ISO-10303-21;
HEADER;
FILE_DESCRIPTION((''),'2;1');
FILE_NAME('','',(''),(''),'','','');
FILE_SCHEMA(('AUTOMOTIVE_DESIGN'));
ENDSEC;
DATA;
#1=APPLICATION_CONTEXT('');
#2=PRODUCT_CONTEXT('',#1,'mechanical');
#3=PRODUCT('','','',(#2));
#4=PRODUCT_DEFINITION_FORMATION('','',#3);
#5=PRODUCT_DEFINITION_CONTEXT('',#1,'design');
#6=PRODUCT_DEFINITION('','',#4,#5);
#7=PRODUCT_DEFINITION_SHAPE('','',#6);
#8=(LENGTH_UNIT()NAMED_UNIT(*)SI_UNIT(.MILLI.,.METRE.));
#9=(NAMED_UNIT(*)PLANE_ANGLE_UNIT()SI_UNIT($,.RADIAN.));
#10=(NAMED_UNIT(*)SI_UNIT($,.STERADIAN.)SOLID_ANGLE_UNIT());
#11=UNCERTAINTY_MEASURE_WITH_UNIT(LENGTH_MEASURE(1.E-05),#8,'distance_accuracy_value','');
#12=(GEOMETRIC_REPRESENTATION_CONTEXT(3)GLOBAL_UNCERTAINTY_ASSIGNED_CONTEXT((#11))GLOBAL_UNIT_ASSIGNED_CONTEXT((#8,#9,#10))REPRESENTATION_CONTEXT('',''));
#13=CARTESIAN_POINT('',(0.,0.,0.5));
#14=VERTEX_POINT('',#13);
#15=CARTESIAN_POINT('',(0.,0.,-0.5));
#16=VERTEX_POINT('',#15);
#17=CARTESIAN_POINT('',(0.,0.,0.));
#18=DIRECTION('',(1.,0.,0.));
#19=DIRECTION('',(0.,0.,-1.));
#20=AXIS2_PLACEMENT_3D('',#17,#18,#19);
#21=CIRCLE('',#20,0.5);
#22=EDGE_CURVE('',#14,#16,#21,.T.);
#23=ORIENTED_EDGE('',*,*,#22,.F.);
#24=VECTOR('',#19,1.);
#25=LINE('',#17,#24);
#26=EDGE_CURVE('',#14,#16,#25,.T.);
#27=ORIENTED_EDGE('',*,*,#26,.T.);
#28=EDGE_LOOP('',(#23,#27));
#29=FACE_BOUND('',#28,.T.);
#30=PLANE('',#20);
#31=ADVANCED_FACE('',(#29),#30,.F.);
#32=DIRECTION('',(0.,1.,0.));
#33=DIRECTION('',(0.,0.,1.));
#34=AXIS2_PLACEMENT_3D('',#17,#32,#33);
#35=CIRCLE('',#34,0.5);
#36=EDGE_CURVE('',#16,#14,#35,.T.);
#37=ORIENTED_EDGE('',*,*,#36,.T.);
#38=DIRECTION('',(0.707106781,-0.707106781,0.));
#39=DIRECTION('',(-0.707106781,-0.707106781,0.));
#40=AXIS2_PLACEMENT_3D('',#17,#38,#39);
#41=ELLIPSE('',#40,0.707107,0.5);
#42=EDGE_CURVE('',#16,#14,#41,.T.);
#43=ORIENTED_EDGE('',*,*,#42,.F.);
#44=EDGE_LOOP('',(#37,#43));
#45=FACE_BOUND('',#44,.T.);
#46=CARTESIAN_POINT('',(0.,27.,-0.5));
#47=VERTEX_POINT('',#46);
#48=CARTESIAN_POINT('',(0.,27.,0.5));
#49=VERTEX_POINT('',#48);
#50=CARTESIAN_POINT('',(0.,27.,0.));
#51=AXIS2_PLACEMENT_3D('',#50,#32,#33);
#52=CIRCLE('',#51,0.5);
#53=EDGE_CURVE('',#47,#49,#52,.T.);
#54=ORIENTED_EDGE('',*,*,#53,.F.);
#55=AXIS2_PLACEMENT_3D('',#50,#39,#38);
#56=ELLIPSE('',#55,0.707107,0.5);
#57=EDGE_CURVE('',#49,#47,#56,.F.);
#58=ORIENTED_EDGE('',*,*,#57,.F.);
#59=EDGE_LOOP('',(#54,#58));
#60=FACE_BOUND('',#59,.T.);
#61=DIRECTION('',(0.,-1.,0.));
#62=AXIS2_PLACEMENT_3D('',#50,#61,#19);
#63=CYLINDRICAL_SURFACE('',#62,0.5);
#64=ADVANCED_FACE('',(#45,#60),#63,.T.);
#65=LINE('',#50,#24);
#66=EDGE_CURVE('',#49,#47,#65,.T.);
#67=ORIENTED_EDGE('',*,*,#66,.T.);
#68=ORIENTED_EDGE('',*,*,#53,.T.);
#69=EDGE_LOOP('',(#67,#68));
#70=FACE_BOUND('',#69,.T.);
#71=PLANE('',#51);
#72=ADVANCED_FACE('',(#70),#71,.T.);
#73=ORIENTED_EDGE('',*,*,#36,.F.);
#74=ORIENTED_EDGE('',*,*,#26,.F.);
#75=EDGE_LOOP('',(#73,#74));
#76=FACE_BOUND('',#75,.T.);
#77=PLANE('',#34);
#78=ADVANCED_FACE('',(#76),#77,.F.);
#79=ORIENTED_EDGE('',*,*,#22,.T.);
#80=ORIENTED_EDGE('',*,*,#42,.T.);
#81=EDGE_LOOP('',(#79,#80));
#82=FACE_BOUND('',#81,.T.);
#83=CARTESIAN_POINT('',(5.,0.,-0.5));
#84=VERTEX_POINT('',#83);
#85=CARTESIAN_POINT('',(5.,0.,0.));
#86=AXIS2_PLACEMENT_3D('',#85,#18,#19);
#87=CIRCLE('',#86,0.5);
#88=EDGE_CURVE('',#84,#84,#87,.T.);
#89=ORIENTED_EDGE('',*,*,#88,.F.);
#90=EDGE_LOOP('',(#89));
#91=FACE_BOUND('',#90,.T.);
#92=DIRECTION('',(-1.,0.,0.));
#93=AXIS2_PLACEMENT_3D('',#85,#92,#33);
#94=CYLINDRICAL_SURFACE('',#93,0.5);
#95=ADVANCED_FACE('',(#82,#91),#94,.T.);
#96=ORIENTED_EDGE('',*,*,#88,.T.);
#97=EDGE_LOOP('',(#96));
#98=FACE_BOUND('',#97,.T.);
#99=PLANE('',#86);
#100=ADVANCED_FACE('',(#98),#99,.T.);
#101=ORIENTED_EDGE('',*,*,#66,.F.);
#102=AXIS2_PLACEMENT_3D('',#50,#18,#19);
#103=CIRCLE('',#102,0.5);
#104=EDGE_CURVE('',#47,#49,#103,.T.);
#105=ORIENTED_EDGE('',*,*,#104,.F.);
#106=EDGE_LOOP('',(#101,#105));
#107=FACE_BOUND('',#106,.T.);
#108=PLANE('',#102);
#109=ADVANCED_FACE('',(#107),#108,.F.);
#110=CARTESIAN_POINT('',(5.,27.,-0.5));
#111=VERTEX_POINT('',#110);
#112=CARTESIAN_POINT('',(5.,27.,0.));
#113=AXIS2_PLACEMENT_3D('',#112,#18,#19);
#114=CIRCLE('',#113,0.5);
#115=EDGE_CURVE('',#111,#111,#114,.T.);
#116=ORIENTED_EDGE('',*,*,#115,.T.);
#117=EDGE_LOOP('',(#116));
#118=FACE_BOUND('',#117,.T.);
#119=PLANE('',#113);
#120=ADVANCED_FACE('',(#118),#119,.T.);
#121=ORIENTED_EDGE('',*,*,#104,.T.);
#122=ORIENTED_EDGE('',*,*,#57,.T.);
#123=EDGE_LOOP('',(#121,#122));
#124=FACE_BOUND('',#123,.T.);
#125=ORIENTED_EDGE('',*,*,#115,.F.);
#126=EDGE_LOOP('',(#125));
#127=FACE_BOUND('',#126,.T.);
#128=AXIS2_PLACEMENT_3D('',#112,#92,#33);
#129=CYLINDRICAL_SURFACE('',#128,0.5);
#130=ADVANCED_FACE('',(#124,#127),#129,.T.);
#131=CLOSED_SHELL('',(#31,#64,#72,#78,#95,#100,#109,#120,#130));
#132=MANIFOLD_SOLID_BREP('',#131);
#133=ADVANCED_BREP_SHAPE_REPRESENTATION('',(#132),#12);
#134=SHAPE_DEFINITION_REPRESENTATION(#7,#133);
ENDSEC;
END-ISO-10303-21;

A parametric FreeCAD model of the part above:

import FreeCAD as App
import Part
import Sketcher

V = App.Vector
Q = App.Units.Quantity

doc = App.newDocument("Part")
params = doc.addObject("Spreadsheet::Sheet", "Params")
for row, (alias, value) in enumerate([
    ("sketch1_diameter", "1 mm"),
    ("pad1_length", "27 mm"),
    ("sketch2_diameter", "1 mm"),
    ("pad2_length", "5 mm"),
], start=1):
    params.set(f"A{row}", alias)
    params.set(f"B{row}", "=" + value)
    params.setAlias(f"B{row}", alias)

body = doc.addObject("PartDesign::Body", "Body")

sketch1 = body.newObject("Sketcher::SketchObject", "Sketch")
sketch1.AttachmentSupport = (doc.getObject("XZ_Plane"), [""])
sketch1.MapMode = "FlatFace"
sketch1.addGeometry(Part.Circle(V(0, 0, 0), V(0, 0, 1), 0.5), False)
sketch1.addConstraint(Sketcher.Constraint("Coincident", 0, 3, -1, 1))
sketch1.addConstraint(Sketcher.Constraint("Diameter", 0, Q("1 mm")))
sketch1.setExpression("Constraints[1]", "Params.sketch1_diameter")
pad1 = body.newObject("PartDesign::Pad", "Pad")
pad1.Profile = sketch1
pad1.setExpression("Length", "Params.pad1_length")
pad1.Reversed = True

sketch2 = body.newObject("Sketcher::SketchObject", "Sketch001")
sketch2.AttachmentSupport = (doc.getObject("YZ_Plane"), [""])
sketch2.MapMode = "FlatFace"
sketch2.addGeometry(Part.Circle(V(0, 0, 0), V(0, 0, 1), 0.5), False)
sketch2.addGeometry(Part.Circle(V(27, 0, 0), V(0, 0, 1), 0.5), False)
sketch2.addConstraint(Sketcher.Constraint("Coincident", 0, 3, -1, 1))
sketch2.addConstraint(Sketcher.Constraint("Equal", 0, 1))
sketch2.addConstraint(Sketcher.Constraint("PointOnObject", 1, 3, -1))
sketch2.addConstraint(Sketcher.Constraint("Diameter", 0, Q("1 mm")))
sketch2.addConstraint(Sketcher.Constraint("DistanceX", -1, 1, 1, 3, Q("27 mm")))
sketch2.setExpression("Constraints[3]", "Params.sketch2_diameter")
pad2 = body.newObject("PartDesign::Pad", "Pad001")
pad2.Profile = sketch2
pad2.setExpression("Length", "Params.pad2_length")

doc.recompute()
